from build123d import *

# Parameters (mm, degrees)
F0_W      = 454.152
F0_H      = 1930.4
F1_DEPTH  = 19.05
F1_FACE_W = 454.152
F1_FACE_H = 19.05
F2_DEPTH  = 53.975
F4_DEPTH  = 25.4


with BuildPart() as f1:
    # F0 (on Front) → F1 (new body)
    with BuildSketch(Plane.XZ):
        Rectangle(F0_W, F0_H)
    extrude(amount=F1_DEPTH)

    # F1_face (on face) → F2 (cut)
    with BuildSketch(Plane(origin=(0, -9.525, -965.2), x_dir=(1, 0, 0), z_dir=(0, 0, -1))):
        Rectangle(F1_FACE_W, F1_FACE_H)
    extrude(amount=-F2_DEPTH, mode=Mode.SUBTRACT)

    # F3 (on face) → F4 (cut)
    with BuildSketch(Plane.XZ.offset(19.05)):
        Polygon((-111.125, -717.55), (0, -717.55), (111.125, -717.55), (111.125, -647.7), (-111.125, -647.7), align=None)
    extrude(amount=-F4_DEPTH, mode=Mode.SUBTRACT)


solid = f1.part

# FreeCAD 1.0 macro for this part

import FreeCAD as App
import Part
import Sketcher

V = App.Vector
Q = App.Units.Quantity


def add_polygon(sketch, points):
    """Adds a closed chain of lines whose ends are joined by coincident constraints."""
    first, n = sketch.GeometryCount, len(points)
    for a, b in zip(points, points[1:] + points[:1]):
        sketch.addGeometry(Part.LineSegment(App.Vector(*a, 0), App.Vector(*b, 0)), False)
    for i in range(n):
        sketch.addConstraint(Sketcher.Constraint("Coincident", first + i, 2, first + (i + 1) % n, 1))

doc = App.newDocument("Part")
params = doc.addObject("Spreadsheet::Sheet", "Params")
for row, (alias, value) in enumerate([
    ("sketch1_height", "76 in"),
    ("sketch1_width", "17.88 in"),
    ("pad1_length", "0.75 in"),
    ("sketch2_width", "17.88 in"),
    ("sketch2_height", "0.75 in"),
    ("pocket1_length", "2.125 in"),
    ("sketch3_width", "8.75 in"),
    ("sketch3_height", "2.75 in"),
    ("pocket2_length", "1 in"),
], start=1):
    params.set(f"A{row}", alias)
    params.set(f"B{row}", "=" + value)
    params.setAlias(f"B{row}", alias)

body = doc.addObject("PartDesign::Body", "Body")

# Sketch on XZ plane
sketch1 = body.newObject("Sketcher::SketchObject", "Sketch")
sketch1.AttachmentSupport = (doc.getObject("XZ_Plane"), [""])
sketch1.MapMode = "FlatFace"
add_polygon(sketch1, [(-227.076, 965.2), (-227.076, -965.2), (227.076, -965.2), (227.076, 965.2)])  # lines 0-3
sketch1.addConstraint([
    Sketcher.Constraint("Vertical", 0),
    Sketcher.Constraint("Horizontal", 1),
    Sketcher.Constraint("Vertical", 2),
    Sketcher.Constraint("Horizontal", 3),
    Sketcher.Constraint("Symmetric", 0, 2, 2, 2, -1, 1),
    Sketcher.Constraint("DistanceY", 0, 2, 0, 1, Q("76 in")),
    Sketcher.Constraint("DistanceX", 1, 1, 1, 2, Q("17.88 in")),
])
sketch1.setExpression("Constraints[9]", "Params.sketch1_height")
sketch1.setExpression("Constraints[10]", "Params.sketch1_width")
pad1 = body.newObject("PartDesign::Pad", "Pad")
pad1.Profile = sketch1
pad1.setExpression("Length", "Params.pad1_length")

# Sketch on XY plane
sketch2 = body.newObject("Sketcher::SketchObject", "Sketch001")
sketch2.AttachmentSupport = (doc.getObject("XY_Plane"), [""])
sketch2.MapMode = "FlatFace"
sketch2.AttachmentOffset = App.Placement(V(0, 0, -38 * 25.4), App.Rotation())
add_polygon(sketch2, [(-227.076, -19.05), (-227.076, 0), (227.076, 0), (227.076, -19.05)])  # lines 0-3
sketch2.addConstraint([
    Sketcher.Constraint("Vertical", 0),
    Sketcher.Constraint("Horizontal", 1),
    Sketcher.Constraint("Vertical", 2),
    Sketcher.Constraint("Horizontal", 3),
    Sketcher.Constraint("Symmetric", 0, 2, 1, 2, -1, 1),
    Sketcher.Constraint("DistanceX", 1, 1, 1, 2, Q("17.88 in")),
    Sketcher.Constraint("DistanceY", 0, 1, 0, 2, Q("0.75 in")),
])
sketch2.setExpression("Constraints[9]", "Params.sketch2_width")
sketch2.setExpression("Constraints[10]", "Params.sketch2_height")
pocket1 = body.newObject("PartDesign::Pocket", "Pocket")
pocket1.Profile = sketch2
pocket1.setExpression("Length", "Params.pocket1_length")
pocket1.Reversed = True

# Sketch on XZ plane
sketch3 = body.newObject("Sketcher::SketchObject", "Sketch002")
sketch3.AttachmentSupport = (doc.getObject("XZ_Plane"), [""])
sketch3.MapMode = "FlatFace"
sketch3.AttachmentOffset = App.Placement(V(0, 0, 0.75 * 25.4), App.Rotation())
add_polygon(sketch3, [(-111.125, -717.55), (111.125, -717.55), (111.125, -647.7), (-111.125, -647.7)])  # lines 0-3
sketch3.addConstraint([
    Sketcher.Constraint("Horizontal", 0),
    Sketcher.Constraint("Vertical", 1),
    Sketcher.Constraint("Horizontal", 2),
    Sketcher.Constraint("Vertical", 3),
    Sketcher.Constraint("DistanceX", 0, 1, 0, 2, Q("8.75 in")),
    Sketcher.Constraint("DistanceY", 1, 1, 1, 2, Q("2.75 in")),
    Sketcher.Constraint("DistanceY", 1, 2, -1, 1, Q("25.5 in")),
    Sketcher.Constraint("DistanceX", -1, 1, 0, 2, Q("4.375 in")),
])
sketch3.setExpression("Constraints[8]", "Params.sketch3_width")
sketch3.setExpression("Constraints[9]", "Params.sketch3_height")
pocket2 = body.newObject("PartDesign::Pocket", "Pocket001")
pocket2.Profile = sketch3
pocket2.setExpression("Length", "Params.pocket2_length")

doc.recompute()
